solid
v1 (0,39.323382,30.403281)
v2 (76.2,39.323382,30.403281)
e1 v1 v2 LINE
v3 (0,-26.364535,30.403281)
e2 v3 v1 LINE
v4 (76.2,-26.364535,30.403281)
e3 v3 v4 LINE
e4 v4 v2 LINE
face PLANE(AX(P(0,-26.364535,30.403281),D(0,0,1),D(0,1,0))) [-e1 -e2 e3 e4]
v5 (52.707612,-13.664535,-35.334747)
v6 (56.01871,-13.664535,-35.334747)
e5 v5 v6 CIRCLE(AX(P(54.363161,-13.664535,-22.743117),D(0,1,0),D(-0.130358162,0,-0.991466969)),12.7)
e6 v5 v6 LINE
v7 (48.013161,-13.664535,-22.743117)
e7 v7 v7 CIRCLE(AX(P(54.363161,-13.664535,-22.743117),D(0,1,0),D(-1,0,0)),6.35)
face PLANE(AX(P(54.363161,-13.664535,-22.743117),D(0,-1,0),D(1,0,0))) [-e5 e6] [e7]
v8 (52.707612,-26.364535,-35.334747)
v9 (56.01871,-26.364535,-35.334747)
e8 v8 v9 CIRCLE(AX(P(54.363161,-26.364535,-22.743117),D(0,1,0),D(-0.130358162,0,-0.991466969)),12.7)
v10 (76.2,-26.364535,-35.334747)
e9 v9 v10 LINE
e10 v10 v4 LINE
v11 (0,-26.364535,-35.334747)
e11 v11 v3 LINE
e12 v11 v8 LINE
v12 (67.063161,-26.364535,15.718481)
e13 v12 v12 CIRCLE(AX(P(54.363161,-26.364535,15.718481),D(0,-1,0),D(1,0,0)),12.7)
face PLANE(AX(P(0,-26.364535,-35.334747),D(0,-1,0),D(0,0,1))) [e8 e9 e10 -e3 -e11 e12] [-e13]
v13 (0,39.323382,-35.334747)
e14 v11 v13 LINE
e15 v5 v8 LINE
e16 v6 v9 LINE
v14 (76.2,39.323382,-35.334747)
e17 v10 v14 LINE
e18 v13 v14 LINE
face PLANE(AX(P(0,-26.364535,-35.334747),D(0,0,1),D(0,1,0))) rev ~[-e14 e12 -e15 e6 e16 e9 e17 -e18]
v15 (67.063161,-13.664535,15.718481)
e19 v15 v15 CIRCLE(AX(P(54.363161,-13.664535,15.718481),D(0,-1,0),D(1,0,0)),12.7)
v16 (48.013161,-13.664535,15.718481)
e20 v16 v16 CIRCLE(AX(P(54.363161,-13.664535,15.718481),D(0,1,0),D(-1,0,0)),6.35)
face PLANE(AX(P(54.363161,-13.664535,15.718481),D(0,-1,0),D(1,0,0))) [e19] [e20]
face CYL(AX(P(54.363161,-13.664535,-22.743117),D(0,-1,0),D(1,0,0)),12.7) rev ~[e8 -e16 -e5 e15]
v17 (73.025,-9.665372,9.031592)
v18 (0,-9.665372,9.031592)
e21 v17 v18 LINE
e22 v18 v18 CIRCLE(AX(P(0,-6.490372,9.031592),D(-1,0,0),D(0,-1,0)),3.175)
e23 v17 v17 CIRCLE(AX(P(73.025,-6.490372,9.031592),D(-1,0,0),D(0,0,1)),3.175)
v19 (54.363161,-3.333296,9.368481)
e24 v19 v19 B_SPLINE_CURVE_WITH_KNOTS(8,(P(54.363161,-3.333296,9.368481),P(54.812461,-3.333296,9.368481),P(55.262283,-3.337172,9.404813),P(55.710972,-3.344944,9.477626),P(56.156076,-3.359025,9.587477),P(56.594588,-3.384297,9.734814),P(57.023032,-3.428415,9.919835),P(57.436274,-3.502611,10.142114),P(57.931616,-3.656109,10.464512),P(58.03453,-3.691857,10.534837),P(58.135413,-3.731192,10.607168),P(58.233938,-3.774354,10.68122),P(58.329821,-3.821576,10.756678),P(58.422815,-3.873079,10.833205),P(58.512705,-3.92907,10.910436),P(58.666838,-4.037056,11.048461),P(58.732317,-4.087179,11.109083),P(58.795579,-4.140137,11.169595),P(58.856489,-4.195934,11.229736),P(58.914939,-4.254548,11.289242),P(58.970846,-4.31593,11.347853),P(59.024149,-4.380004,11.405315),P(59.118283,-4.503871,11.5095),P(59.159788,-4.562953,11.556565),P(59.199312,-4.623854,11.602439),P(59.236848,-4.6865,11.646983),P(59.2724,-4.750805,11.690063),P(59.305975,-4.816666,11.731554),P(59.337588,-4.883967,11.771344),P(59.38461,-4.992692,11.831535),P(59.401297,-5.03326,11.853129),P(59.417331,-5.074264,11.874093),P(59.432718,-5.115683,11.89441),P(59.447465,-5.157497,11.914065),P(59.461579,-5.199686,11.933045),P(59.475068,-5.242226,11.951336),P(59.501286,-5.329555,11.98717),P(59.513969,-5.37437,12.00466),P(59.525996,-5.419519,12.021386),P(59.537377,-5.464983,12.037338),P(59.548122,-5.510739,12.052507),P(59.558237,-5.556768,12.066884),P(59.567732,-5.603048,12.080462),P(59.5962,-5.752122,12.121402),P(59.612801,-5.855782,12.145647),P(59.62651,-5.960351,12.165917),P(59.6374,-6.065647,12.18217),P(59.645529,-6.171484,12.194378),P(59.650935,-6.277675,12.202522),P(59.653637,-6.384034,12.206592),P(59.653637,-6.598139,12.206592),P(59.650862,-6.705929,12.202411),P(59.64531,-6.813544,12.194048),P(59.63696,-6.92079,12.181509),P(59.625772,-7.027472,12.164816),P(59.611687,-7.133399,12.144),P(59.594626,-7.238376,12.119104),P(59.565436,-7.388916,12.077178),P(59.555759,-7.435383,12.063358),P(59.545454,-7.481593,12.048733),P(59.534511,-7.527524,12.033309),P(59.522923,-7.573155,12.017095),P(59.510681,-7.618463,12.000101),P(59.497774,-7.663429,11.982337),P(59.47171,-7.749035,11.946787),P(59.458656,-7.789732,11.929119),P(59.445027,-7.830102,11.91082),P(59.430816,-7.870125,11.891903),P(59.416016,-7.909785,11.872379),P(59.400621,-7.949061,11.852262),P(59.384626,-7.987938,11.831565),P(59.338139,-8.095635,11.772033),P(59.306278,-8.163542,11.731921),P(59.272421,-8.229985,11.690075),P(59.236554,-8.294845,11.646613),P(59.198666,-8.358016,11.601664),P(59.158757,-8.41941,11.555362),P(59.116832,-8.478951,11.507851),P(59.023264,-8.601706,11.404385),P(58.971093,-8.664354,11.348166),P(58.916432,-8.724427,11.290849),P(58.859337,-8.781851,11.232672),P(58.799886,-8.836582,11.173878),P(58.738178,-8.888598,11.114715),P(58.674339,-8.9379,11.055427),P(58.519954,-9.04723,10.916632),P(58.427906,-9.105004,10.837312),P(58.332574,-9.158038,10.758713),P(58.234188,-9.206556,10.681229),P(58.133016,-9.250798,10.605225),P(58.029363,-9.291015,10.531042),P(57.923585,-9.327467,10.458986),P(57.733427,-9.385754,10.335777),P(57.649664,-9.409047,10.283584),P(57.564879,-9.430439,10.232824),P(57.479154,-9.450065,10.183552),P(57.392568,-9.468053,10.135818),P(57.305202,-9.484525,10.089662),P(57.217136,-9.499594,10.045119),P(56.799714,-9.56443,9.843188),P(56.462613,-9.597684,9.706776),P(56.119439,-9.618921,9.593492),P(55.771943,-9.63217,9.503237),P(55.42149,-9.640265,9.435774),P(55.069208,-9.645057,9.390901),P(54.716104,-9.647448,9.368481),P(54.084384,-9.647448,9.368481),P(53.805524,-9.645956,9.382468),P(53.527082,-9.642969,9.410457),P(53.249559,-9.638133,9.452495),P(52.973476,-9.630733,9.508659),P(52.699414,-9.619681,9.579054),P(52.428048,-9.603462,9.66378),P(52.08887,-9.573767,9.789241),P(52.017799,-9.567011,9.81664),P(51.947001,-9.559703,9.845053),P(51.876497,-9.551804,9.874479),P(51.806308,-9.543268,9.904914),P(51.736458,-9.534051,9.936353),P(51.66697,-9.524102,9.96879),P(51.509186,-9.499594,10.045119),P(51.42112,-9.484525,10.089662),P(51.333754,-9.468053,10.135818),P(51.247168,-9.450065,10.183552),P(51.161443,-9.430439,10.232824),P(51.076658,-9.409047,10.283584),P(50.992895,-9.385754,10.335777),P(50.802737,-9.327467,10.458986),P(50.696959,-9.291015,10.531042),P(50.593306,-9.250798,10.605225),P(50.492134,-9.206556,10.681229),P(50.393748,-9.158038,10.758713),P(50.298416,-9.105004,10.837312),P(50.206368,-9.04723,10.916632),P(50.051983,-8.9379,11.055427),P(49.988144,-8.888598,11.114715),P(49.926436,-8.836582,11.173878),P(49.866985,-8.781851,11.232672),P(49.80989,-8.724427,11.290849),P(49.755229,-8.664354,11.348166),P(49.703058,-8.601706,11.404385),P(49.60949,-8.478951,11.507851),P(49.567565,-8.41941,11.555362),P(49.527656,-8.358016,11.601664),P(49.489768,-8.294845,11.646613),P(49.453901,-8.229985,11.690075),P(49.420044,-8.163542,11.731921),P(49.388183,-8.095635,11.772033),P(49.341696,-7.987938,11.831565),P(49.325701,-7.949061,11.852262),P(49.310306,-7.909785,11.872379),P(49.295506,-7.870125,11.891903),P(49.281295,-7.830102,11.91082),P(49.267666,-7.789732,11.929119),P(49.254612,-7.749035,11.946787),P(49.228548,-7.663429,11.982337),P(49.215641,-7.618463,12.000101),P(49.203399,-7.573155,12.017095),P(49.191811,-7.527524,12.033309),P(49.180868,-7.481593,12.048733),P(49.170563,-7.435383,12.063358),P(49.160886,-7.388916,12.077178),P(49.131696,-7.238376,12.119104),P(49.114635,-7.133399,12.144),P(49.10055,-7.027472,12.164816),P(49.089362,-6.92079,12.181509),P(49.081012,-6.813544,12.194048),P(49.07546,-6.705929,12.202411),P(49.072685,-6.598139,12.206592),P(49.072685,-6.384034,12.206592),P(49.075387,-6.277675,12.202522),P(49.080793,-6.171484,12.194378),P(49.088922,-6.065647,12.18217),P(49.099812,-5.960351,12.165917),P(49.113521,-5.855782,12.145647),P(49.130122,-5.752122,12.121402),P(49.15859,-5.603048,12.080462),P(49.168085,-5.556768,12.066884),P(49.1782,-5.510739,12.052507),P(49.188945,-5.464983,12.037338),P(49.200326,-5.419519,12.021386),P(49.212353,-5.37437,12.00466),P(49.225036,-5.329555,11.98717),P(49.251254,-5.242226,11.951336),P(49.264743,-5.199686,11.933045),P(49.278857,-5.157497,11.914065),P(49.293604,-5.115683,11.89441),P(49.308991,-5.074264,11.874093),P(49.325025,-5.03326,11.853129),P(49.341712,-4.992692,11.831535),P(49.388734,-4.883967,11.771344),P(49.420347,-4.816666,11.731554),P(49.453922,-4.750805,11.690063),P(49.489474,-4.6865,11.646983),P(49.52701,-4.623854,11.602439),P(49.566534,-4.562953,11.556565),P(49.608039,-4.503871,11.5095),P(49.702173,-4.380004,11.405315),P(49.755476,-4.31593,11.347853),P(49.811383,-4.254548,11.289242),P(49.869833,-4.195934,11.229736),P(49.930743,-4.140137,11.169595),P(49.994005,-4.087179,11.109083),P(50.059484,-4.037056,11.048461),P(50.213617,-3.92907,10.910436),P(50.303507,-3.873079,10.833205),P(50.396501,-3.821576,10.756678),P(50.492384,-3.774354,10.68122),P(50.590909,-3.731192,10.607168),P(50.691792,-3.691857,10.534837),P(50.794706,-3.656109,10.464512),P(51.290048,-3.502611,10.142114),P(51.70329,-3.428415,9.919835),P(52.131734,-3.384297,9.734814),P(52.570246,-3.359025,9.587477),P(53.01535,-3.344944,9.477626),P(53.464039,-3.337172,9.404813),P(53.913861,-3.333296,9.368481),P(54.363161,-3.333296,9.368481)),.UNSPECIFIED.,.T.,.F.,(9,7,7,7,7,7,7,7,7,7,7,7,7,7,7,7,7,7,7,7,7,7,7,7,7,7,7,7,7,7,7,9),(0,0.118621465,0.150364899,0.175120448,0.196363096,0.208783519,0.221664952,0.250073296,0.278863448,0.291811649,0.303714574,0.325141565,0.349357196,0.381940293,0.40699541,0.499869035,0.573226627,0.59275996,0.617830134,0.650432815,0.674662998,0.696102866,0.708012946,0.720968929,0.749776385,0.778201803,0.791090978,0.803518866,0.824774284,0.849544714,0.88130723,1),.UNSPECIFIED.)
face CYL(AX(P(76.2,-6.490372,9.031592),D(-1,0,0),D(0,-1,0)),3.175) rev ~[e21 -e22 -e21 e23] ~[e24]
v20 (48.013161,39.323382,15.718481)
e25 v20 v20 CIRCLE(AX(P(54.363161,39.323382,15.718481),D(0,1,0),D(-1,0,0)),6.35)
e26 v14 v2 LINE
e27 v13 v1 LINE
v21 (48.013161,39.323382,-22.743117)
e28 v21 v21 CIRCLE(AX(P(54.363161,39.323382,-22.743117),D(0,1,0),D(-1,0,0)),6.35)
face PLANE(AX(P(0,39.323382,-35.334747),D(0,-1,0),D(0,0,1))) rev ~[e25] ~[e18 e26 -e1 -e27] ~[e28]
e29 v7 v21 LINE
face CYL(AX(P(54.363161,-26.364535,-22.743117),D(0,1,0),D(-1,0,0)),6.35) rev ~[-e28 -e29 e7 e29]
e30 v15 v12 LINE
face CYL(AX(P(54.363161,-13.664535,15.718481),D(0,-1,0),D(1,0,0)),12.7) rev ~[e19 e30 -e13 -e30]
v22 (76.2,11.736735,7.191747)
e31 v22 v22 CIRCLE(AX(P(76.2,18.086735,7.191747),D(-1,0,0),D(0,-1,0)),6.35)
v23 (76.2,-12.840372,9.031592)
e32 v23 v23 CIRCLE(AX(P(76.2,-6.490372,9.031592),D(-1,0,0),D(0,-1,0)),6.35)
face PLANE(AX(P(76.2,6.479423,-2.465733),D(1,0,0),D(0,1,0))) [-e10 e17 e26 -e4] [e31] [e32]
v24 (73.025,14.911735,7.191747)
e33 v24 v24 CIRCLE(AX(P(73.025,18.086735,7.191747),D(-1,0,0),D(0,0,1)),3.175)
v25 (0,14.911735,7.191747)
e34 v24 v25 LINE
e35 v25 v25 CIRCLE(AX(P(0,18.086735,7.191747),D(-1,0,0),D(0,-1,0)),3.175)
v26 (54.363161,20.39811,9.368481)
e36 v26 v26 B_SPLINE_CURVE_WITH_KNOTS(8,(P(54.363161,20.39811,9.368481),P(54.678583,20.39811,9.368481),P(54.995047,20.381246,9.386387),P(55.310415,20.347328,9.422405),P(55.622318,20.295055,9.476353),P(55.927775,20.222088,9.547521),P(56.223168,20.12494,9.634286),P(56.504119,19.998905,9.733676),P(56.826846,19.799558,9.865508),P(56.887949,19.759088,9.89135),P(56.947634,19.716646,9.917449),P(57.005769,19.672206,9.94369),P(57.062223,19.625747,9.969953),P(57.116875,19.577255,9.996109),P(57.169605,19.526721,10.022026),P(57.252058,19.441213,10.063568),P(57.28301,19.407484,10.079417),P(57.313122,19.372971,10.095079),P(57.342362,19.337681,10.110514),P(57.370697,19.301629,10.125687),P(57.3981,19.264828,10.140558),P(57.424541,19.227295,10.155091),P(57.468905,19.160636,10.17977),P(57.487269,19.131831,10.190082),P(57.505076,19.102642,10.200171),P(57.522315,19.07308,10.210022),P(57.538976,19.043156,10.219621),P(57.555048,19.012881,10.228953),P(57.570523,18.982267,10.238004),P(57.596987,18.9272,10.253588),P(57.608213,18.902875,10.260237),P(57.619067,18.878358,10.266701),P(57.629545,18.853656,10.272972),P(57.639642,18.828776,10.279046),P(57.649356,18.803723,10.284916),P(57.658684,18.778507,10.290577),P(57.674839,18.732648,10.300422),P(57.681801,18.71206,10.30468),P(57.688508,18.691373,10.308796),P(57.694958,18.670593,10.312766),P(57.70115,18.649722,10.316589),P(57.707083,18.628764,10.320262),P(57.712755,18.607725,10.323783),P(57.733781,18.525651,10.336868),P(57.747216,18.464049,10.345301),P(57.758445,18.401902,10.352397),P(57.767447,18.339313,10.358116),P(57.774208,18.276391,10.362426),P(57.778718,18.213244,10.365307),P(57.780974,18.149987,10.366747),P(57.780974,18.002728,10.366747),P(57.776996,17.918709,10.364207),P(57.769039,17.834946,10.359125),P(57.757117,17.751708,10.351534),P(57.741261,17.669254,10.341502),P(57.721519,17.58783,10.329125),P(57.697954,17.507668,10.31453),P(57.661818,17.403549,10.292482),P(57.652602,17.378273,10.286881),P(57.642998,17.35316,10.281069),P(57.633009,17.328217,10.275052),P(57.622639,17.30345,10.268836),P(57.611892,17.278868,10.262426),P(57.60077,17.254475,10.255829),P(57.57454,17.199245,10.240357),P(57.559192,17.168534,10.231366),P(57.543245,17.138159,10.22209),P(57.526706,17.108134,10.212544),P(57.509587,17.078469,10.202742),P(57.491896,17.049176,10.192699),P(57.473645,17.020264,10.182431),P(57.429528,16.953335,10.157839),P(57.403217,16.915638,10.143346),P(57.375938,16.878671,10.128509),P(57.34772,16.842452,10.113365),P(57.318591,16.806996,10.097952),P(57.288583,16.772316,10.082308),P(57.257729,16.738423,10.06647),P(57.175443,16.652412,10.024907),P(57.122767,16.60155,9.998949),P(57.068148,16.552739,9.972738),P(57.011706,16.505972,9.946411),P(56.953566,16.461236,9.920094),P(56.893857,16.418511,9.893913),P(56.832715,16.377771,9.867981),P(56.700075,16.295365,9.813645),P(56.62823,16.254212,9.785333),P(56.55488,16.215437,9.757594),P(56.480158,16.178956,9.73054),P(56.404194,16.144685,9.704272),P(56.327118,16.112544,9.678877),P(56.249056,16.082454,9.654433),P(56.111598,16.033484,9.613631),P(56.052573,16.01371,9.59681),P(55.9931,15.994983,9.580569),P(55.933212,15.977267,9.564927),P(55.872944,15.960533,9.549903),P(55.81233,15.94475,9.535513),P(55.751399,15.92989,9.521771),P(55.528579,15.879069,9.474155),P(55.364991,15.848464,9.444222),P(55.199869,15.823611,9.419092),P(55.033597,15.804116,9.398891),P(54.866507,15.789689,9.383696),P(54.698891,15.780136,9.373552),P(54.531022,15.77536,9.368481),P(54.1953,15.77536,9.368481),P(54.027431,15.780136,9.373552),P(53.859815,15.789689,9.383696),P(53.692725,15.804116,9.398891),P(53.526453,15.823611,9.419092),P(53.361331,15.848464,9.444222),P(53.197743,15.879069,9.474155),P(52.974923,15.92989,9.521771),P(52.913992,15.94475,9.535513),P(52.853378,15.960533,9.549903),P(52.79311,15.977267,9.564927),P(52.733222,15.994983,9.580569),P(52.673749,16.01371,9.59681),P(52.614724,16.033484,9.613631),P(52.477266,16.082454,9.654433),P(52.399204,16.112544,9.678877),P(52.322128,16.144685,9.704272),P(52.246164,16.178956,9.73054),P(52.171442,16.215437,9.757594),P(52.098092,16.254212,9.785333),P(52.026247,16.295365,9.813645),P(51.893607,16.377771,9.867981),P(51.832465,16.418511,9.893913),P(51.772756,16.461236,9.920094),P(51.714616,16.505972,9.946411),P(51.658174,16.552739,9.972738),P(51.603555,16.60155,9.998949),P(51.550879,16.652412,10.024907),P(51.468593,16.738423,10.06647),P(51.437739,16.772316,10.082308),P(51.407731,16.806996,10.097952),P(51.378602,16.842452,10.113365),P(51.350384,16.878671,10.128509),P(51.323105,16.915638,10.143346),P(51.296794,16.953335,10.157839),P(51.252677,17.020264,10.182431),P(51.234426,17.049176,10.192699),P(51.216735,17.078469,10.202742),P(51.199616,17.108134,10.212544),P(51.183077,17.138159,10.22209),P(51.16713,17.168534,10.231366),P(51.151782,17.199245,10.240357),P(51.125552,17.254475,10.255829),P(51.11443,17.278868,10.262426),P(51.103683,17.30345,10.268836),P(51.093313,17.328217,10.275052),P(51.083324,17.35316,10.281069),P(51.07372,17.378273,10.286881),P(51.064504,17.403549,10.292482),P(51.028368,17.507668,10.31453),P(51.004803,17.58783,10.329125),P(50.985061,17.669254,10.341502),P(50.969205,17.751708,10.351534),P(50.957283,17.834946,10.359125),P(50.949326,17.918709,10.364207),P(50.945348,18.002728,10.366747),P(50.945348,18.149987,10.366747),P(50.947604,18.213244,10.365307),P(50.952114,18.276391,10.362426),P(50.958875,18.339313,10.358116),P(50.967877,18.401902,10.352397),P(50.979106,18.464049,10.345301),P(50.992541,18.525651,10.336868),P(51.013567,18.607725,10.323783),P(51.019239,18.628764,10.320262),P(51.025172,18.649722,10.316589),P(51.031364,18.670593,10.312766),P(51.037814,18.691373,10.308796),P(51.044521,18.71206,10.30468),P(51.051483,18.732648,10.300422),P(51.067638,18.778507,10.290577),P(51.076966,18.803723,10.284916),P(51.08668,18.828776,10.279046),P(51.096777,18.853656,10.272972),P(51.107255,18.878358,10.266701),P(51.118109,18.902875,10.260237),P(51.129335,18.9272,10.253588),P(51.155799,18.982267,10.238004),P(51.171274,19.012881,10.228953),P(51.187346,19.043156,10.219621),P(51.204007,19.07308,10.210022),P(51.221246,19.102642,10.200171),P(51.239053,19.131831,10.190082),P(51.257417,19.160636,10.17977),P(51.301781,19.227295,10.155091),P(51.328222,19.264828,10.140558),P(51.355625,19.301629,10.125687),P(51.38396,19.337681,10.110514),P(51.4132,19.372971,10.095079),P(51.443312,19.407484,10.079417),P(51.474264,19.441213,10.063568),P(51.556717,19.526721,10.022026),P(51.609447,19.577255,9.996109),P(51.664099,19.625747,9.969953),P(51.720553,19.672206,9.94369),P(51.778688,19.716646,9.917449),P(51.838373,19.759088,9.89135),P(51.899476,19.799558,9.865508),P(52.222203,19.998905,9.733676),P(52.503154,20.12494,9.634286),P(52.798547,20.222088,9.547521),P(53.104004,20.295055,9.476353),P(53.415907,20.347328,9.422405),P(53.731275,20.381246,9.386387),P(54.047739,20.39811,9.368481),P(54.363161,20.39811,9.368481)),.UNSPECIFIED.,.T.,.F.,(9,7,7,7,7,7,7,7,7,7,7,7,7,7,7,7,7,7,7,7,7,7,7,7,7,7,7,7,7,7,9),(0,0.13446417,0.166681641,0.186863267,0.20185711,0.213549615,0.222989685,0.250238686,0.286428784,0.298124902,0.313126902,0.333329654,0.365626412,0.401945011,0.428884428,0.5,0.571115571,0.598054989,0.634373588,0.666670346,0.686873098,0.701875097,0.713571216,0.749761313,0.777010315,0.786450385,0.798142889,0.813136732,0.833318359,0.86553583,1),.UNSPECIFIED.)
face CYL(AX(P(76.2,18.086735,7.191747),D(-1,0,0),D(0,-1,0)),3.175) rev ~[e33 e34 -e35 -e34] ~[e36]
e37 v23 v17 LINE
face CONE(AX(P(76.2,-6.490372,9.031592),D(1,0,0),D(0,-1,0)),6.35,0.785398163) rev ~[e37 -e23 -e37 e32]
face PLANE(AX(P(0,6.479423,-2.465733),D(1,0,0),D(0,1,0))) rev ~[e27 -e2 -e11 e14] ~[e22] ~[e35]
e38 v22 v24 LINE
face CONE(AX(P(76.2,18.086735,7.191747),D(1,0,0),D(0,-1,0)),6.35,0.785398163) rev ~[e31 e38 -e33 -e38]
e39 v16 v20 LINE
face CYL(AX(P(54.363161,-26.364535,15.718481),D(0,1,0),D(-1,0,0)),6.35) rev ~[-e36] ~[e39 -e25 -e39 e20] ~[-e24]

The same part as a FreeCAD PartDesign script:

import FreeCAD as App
import Part
import Sketcher
Q = App.Units.Quantity

doc = App.newDocument("Part")
body = doc.addObject("PartDesign::Body", "Body")

sketch1 = body.newObject("Sketcher::SketchObject", "Sketch")
sketch1.AttachmentSupport = (doc.getObject("YZ_Plane"), [""])
sketch1.MapMode = "FlatFace"
sketch1.addGeometry(Part.LineSegment(App.Vector(-26, 30, 0), App.Vector(-26, -35, 0)), False)
sketch1.addGeometry(Part.LineSegment(App.Vector(-26, -35, 0), App.Vector(39, -35, 0)), False)
sketch1.addGeometry(Part.LineSegment(App.Vector(39, -35, 0), App.Vector(39, 30, 0)), False)
sketch1.addGeometry(Part.LineSegment(App.Vector(39, 30, 0), App.Vector(-26, 30, 0)), False)
sketch1.addConstraint(Sketcher.Constraint("Coincident", 0, 2, 1, 1))
sketch1.addConstraint(Sketcher.Constraint("Coincident", 1, 2, 2, 1))
sketch1.addConstraint(Sketcher.Constraint("Coincident", 2, 2, 3, 1))
sketch1.addConstraint(Sketcher.Constraint("Coincident", 3, 2, 0, 1))
sketch1.addConstraint(Sketcher.Constraint("Vertical", 0))
sketch1.addConstraint(Sketcher.Constraint("Horizontal", 1))
sketch1.addConstraint(Sketcher.Constraint("Vertical", 2))
sketch1.addConstraint(Sketcher.Constraint("Horizontal", 3))
sketch1.addConstraint(Sketcher.Constraint("DistanceY", 0, 2, 0, 1, 65.738029))
sketch1.addConstraint(Sketcher.Constraint("DistanceX", 1, 1, 1, 2, 65.687917))
sketch1.addConstraint(Sketcher.Constraint("DistanceX", -1, 1, 1, 2, 39.323382))
sketch1.addConstraint(Sketcher.Constraint("DistanceY", -1, 1, 2, 2, 30.403281))
pad1 = body.newObject("PartDesign::Pad", "Pad")
pad1.Profile = sketch1
pad1.Length = Q("3 in")

sketch2 = body.newObject("Sketcher::SketchObject", "Sketch001")
sketch2.AttachmentSupport = (doc.getObject("YZ_Plane"), [""])
sketch2.MapMode = "FlatFace"
sketch2.AttachmentOffset = App.Placement(App.Vector(0, 0, 3 * 25.4), App.Rotation())
sketch2.addGeometry(Part.Circle(App.Vector(-6.5, 9, 0), App.Vector(0, 0, 1), 3.2), False)
sketch2.addGeometry(Part.Circle(App.Vector(18.1, 7.2, 0), App.Vector(0, 0, 1), 3.2), False)
sketch2.addConstraint(Sketcher.Constraint("Equal", 0, 1))
sketch2.addConstraint(Sketcher.Constraint("Diameter", 0, Q("0.25 in")))
sketch2.addConstraint(Sketcher.Constraint("DistanceX", 0, 3, -1, 1, 6.490372))
sketch2.addConstraint(Sketcher.Constraint("DistanceY", -1, 1, 0, 3, 9.031592))
sketch2.addConstraint(Sketcher.Constraint("DistanceX", -1, 1, 1, 3, 18.086735))
sketch2.addConstraint(Sketcher.Constraint("DistanceY", -1, 1, 1, 3, 7.191747))
doc.recompute()
hole = body.newObject("PartDesign::Hole", "Hole")
hole.Profile = sketch2
hole.ThreadType = "None"
hole.Diameter = Q("0.25 in")
hole.DepthType = "ThroughAll"
hole.HoleCutType = "Countersink"
hole.HoleCutDiameter = Q("0.5 in")
hole.HoleCutCountersinkAngle = 90

sketch3 = body.newObject("Sketcher::SketchObject", "Sketch002")
sketch3.AttachmentSupport = (doc.getObject("XZ_Plane"), [""])
sketch3.MapMode = "FlatFace"
sketch3.AttachmentOffset = App.Placement(App.Vector(0, 0, 26.364535), App.Rotation())
sketch3.addGeometry(Part.Circle(App.Vector(54, 16, 0), App.Vector(0, 0, 1), 6), False)
sketch3.addGeometry(Part.Circle(App.Vector(54, -23, 0), App.Vector(0, 0, 1), 6), False)
sketch3.addConstraint(Sketcher.Constraint("Equal", 0, 1))
sketch3.addConstraint(Sketcher.Constraint("Vertical", 0, 3, 1, 3))
sketch3.addConstraint(Sketcher.Constraint("Diameter", 0, Q("0.5 in")))
sketch3.addConstraint(Sketcher.Constraint("DistanceY", 1, 3, 0, 3, 38.461598))
sketch3.addConstraint(Sketcher.Constraint("DistanceX", -1, 1, 0, 3, 54.363161))
sketch3.addConstraint(Sketcher.Constraint("DistanceY", -1, 1, 0, 3, 15.718481))
doc.recompute()
hole2 = body.newObject("PartDesign::Hole", "Hole001")
hole2.Profile = sketch3
hole2.ThreadType = "None"
hole2.Diameter = Q("0.5 in")
hole2.DepthType = "ThroughAll"
hole2.HoleCutType = "Counterbore"
hole2.HoleCutDiameter = Q("1 in")
hole2.HoleCutDepth = Q("0.5 in")

doc.recompute()
